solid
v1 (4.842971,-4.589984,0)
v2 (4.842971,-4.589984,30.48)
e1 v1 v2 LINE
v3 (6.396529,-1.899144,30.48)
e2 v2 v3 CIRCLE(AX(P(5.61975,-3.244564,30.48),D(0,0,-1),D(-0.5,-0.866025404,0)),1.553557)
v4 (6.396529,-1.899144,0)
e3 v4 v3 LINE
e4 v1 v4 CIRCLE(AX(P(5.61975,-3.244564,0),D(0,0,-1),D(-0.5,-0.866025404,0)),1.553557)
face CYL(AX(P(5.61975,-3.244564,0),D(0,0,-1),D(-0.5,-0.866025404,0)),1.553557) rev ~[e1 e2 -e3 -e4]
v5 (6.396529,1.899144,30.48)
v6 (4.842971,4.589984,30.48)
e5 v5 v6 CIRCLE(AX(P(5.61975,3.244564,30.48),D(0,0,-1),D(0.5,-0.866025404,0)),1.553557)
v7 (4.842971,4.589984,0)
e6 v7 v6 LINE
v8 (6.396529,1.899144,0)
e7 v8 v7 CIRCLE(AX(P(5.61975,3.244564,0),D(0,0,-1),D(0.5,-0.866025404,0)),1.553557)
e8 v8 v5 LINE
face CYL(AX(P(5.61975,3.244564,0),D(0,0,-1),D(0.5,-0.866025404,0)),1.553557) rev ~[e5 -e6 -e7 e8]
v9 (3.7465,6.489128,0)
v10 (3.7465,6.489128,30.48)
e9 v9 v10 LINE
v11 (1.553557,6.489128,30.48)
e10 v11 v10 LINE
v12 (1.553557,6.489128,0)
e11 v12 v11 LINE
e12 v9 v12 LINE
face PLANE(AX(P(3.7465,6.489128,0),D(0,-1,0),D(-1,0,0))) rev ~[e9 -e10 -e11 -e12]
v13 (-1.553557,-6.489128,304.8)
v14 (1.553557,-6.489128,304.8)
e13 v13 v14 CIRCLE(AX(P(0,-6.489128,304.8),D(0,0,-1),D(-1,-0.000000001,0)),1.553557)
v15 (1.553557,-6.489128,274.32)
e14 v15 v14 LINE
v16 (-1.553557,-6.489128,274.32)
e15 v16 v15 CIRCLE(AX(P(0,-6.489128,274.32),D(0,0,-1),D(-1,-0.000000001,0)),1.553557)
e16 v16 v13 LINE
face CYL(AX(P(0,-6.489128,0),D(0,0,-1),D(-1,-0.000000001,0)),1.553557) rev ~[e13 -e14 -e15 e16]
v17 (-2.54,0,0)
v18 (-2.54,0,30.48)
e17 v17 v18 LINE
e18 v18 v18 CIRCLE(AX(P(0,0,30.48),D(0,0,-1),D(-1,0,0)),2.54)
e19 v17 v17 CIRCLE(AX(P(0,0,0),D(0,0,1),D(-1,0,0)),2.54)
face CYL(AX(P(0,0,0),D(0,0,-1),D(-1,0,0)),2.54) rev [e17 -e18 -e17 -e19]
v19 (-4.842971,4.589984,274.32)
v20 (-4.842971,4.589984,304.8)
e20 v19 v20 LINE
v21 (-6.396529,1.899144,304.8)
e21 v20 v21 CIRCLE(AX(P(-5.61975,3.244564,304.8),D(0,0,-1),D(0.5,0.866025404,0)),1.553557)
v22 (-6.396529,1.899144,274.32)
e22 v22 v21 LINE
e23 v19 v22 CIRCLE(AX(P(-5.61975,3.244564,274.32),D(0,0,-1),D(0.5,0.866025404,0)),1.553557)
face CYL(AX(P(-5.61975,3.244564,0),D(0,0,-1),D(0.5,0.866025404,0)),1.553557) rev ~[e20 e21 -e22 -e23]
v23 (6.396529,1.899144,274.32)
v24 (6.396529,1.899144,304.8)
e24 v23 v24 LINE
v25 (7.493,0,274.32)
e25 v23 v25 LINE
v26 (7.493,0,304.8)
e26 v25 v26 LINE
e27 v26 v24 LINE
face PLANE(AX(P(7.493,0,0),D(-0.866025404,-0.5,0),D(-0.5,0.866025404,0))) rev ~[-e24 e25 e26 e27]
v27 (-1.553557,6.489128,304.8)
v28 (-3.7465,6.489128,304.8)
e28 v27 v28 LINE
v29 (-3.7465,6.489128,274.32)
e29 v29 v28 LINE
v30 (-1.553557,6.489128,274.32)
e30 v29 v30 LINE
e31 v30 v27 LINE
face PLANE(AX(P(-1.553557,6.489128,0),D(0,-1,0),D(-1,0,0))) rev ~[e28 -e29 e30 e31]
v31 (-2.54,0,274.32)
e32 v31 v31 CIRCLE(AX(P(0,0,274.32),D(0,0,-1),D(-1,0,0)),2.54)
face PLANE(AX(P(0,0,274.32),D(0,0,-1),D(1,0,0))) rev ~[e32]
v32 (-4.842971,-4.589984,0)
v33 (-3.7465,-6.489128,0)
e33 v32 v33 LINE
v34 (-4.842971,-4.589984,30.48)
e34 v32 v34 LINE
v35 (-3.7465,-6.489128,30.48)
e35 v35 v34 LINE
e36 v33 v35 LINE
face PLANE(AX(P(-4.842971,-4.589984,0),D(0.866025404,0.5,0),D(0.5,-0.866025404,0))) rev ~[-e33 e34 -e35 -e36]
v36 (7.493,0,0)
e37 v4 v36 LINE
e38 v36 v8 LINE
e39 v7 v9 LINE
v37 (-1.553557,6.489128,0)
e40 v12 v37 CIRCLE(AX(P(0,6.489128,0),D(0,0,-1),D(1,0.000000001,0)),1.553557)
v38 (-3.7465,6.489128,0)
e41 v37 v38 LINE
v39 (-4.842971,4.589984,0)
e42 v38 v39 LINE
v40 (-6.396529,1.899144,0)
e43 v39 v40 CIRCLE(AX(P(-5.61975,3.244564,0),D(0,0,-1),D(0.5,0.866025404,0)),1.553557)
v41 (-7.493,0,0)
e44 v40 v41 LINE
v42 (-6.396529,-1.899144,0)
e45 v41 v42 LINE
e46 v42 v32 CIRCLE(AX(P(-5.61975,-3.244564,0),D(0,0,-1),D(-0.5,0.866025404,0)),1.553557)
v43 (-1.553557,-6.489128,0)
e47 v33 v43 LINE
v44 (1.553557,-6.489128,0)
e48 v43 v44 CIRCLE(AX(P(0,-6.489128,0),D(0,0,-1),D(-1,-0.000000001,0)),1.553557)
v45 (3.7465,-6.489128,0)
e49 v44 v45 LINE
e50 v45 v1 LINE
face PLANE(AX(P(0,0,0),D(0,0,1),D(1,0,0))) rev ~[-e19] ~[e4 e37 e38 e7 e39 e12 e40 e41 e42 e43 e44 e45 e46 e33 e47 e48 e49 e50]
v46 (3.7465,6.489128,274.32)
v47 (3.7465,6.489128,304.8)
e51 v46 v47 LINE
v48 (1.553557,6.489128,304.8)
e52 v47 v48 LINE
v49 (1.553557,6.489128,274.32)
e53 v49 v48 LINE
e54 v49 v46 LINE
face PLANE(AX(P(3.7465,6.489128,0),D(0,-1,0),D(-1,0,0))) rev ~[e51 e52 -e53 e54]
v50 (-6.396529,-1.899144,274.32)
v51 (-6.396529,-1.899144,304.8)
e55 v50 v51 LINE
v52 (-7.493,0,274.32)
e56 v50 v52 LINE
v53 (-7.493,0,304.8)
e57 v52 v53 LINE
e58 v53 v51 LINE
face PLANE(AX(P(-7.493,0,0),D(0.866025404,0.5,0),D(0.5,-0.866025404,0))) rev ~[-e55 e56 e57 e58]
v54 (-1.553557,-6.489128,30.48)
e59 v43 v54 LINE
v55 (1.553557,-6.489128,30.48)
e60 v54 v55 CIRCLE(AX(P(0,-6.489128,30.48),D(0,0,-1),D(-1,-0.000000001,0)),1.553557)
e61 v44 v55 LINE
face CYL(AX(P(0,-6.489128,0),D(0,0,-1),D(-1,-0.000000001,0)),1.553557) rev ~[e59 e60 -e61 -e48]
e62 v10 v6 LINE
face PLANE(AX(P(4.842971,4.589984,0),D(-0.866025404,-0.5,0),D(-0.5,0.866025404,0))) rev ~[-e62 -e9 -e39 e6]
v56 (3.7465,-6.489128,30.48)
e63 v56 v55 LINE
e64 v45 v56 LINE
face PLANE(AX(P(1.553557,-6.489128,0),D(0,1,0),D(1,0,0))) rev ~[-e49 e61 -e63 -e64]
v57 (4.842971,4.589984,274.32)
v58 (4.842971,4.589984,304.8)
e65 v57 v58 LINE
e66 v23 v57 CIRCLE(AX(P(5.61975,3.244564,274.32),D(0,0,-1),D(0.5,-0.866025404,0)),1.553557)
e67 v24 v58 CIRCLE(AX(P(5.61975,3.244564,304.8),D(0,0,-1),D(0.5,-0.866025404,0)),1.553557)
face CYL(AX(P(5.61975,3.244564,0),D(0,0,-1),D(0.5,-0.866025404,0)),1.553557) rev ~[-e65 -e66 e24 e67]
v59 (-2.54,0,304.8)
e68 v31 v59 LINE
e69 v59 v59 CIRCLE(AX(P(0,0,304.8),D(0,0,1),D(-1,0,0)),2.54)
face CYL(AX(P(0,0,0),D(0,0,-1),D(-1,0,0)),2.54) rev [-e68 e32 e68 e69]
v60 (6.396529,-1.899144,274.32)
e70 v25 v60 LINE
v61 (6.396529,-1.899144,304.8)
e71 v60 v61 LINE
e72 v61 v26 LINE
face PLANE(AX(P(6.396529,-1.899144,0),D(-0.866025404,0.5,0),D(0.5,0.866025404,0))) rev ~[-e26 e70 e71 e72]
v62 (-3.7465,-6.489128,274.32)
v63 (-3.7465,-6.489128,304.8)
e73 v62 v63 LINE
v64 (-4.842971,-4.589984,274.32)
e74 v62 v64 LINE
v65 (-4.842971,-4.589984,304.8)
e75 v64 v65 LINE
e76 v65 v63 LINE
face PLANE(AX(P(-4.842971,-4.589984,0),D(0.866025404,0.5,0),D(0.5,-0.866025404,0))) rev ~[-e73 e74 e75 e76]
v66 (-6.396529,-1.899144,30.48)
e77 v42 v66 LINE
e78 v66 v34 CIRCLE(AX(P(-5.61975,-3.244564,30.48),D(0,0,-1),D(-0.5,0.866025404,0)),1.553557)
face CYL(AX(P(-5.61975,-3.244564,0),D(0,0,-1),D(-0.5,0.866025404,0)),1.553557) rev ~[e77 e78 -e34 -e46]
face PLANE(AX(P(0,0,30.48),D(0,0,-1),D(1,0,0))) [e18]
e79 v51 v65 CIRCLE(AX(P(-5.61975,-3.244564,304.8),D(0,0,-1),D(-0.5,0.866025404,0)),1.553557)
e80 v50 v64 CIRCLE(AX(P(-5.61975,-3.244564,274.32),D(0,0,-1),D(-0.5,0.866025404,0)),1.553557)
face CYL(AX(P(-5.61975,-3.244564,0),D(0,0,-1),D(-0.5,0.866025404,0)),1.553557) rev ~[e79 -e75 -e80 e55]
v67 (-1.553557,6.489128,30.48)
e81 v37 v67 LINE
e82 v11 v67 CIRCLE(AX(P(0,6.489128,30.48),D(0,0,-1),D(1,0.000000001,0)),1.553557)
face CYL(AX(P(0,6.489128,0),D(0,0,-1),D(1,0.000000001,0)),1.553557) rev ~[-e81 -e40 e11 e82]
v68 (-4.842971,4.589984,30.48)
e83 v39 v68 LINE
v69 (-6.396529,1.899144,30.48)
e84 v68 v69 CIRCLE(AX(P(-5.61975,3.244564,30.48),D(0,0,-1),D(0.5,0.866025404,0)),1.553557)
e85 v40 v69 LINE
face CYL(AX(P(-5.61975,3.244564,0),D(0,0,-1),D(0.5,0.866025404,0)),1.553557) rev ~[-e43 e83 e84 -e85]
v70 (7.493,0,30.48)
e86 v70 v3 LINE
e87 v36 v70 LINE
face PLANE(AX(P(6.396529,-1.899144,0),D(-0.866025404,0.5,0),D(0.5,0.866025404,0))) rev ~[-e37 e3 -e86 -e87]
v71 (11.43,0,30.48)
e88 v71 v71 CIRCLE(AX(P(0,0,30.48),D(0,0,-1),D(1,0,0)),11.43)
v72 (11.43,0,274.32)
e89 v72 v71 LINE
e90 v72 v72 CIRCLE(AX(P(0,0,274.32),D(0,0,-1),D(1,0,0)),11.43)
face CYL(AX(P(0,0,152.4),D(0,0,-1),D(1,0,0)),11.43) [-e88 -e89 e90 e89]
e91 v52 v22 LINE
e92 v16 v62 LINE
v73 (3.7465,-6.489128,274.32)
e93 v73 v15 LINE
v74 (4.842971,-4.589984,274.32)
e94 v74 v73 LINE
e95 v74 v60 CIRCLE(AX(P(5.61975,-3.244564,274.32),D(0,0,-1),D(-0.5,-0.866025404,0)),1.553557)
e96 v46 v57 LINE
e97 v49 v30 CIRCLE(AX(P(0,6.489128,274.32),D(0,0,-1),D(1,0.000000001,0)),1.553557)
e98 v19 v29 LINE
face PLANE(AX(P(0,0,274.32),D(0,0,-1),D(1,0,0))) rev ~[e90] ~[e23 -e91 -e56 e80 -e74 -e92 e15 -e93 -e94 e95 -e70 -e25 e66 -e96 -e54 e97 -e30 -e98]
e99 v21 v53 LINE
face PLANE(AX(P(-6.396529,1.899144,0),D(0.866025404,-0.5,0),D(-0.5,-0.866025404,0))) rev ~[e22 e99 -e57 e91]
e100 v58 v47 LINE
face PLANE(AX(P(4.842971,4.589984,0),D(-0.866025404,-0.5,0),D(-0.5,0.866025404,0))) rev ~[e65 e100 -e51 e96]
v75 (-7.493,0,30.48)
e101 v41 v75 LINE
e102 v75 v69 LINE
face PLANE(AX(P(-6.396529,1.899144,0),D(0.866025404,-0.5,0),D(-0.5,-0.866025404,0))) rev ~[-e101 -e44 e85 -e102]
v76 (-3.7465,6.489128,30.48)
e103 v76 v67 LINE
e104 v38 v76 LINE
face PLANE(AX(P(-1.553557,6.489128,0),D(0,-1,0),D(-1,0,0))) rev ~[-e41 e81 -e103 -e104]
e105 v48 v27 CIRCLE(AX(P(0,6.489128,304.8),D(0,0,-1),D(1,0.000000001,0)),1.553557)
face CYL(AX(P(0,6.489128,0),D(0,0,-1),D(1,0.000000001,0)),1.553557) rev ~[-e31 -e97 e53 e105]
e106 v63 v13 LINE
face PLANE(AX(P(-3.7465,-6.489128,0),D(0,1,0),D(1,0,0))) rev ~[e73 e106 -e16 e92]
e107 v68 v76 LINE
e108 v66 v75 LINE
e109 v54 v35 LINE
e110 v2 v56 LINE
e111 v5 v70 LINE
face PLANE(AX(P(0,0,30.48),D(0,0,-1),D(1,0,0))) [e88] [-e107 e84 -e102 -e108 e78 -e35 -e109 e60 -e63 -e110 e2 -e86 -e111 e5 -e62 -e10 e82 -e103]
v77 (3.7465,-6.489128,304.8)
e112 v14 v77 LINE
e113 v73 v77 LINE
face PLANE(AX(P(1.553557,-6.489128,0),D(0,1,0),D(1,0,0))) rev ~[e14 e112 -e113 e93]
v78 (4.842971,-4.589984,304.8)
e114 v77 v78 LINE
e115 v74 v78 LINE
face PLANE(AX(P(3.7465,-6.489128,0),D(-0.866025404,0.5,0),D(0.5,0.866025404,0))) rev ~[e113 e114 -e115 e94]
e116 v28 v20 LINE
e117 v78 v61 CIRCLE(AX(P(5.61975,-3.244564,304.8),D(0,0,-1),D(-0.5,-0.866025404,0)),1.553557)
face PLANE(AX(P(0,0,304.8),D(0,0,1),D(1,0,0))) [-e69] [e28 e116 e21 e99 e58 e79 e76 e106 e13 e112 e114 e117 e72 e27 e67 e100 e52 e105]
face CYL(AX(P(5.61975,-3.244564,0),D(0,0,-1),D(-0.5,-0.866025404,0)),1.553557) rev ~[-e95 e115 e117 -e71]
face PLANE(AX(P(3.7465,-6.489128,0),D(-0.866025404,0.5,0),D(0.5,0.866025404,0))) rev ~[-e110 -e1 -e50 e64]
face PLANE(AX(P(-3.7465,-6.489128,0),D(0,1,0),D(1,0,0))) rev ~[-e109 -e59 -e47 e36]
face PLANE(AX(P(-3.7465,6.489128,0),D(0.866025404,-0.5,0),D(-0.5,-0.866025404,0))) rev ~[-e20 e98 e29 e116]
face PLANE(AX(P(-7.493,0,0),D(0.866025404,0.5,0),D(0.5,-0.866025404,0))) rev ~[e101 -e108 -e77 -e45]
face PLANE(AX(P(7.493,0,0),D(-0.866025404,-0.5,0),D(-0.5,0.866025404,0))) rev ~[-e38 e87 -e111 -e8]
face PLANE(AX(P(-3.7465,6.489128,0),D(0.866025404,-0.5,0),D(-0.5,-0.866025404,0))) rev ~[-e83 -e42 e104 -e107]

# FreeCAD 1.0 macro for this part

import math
import FreeCAD as App
import Part
import Sketcher
from FreeCAD import Vector
Q = App.Units.Quantity

doc = App.newDocument("Part")
body = doc.addObject("PartDesign::Body", "Body")

sketch1 = body.newObject("Sketcher::SketchObject", "Sketch")
sketch1.AttachmentSupport = (doc.getObject("XY_Plane"), [""])
sketch1.MapMode = "FlatFace"
sketch1.addGeometry([
    Part.LineSegment(Vector(7.5, 0, 0), Vector(6.4, 1.9, 0)),
    Part.ArcOfCircle(Part.Circle(Vector(5.6, 3.2, 0), Vector(0, 0, 1), 1.6), math.radians(120), math.radians(300)),
    Part.LineSegment(Vector(4.8, 4.6, 0), Vector(3.7, 6.5, 0)),
    Part.LineSegment(Vector(3.7, 6.5, 0), Vector(1.6, 6.5, 0)),
    Part.ArcOfCircle(Part.Circle(Vector(0, 6.5, 0), Vector(0, 0, 1), 1.6), math.radians(180), math.radians(360)),
    Part.LineSegment(Vector(-1.6, 6.5, 0), Vector(-3.7, 6.5, 0)),
    Part.LineSegment(Vector(-3.7, 6.5, 0), Vector(-4.8, 4.6, 0)),
    Part.ArcOfCircle(Part.Circle(Vector(-5.6, 3.2, 0), Vector(0, 0, 1), 1.6), math.radians(-120), math.radians(60)),
    Part.LineSegment(Vector(-6.4, 1.9, 0), Vector(-7.5, 0, 0)),
    Part.LineSegment(Vector(-7.5, 0, 0), Vector(-6.4, -1.9, 0)),
    Part.ArcOfCircle(Part.Circle(Vector(-5.6, -3.2, 0), Vector(0, 0, 1), 1.6), math.radians(-60), math.radians(120)),
    Part.LineSegment(Vector(-4.8, -4.6, 0), Vector(-3.7, -6.5, 0)),
    Part.LineSegment(Vector(-3.7, -6.5, 0), Vector(-1.6, -6.5, 0)),
    Part.ArcOfCircle(Part.Circle(Vector(0, -6.5, 0), Vector(0, 0, 1), 1.6), math.radians(0), math.radians(180)),
    Part.LineSegment(Vector(1.6, -6.5, 0), Vector(3.7, -6.5, 0)),
    Part.LineSegment(Vector(3.7, -6.5, 0), Vector(4.8, -4.6, 0)),
    Part.ArcOfCircle(Part.Circle(Vector(5.6, -3.2, 0), Vector(0, 0, 1), 1.6), math.radians(60), math.radians(240)),
    Part.LineSegment(Vector(6.4, -1.9, 0), Vector(7.5, 0, 0)),
    Part.Circle(Vector(0, 0, 0), Vector(0, 0, 1), 2.5),
], False)
sketch1.addConstraint([
    Sketcher.Constraint("Coincident", 0, 2, 1, 2),
    Sketcher.Constraint("Coincident", 1, 1, 2, 1),
    Sketcher.Constraint("Coincident", 2, 2, 3, 1),
    Sketcher.Constraint("Coincident", 3, 2, 4, 2),
    Sketcher.Constraint("Coincident", 4, 1, 5, 1),
    Sketcher.Constraint("Coincident", 5, 2, 6, 1),
    Sketcher.Constraint("Coincident", 6, 2, 7, 2),
    Sketcher.Constraint("Coincident", 7, 1, 8, 1),
    Sketcher.Constraint("Coincident", 8, 2, 9, 1),
    Sketcher.Constraint("Coincident", 9, 2, 10, 2),
    Sketcher.Constraint("Coincident", 10, 1, 11, 1),
    Sketcher.Constraint("Coincident", 11, 2, 12, 1),
    Sketcher.Constraint("Coincident", 12, 2, 13, 2),
    Sketcher.Constraint("Coincident", 13, 1, 14, 1),
    Sketcher.Constraint("Coincident", 14, 2, 15, 1),
    Sketcher.Constraint("Coincident", 15, 2, 16, 2),
    Sketcher.Constraint("Coincident", 16, 1, 17, 1),
    Sketcher.Constraint("Coincident", 17, 2, 0, 1),
    Sketcher.Constraint("Horizontal", 3),
    Sketcher.Constraint("Horizontal", 5),
    Sketcher.Constraint("Horizontal", 12),
    Sketcher.Constraint("Horizontal", 14),
    Sketcher.Constraint("Coincident", 18, 3, -1, 1),
    Sketcher.Constraint("Equal", 1, 4),
    Sketcher.Constraint("Equal", 4, 7),
    Sketcher.Constraint("Equal", 7, 10),
    Sketcher.Constraint("Equal", 10, 13),
    Sketcher.Constraint("Equal", 13, 16),
    Sketcher.Constraint("Symmetric", 1, 3, 10, 3, -1, 1),
    Sketcher.Constraint("Symmetric", 4, 3, 13, 3, -1, 1),
    Sketcher.Constraint("Symmetric", 7, 3, 16, 3, -1, 1),
    Sketcher.Constraint("Symmetric", 2, 2, 11, 2, -1, 1),
    Sketcher.Constraint("Symmetric", 5, 2, 14, 2, -1, 1),
    Sketcher.Constraint("Symmetric", 8, 2, 17, 2, -1, 1),
    Sketcher.Constraint("Symmetric", 1, 3, 7, 3, -2),
    Sketcher.Constraint("Symmetric", 3, 2, 4, 1, -2),
    Sketcher.Constraint("PointOnObject", 8, 2, -1),
    Sketcher.Constraint("Parallel", 0, 2),
    Sketcher.Constraint("Parallel", 6, 8),
    Sketcher.Constraint("Parallel", 2, 9),
    Sketcher.Constraint("Parallel", 9, 11),
    Sketcher.Constraint("Parallel", 8, 15),
    Sketcher.Constraint("Parallel", 15, 17),
    Sketcher.Constraint("Horizontal", 4, 3, 2, 2),
    Sketcher.Constraint("Horizontal", 1, 1, 6, 2),
    Sketcher.Constraint("Horizontal", 0, 2, 7, 1),
    Sketcher.Constraint("Equal", 0, 2),
    Sketcher.Constraint("Diameter", 18, Q("0.2 in")),
    Sketcher.Constraint("Angle", 0, Q("120 deg")),
    Sketcher.Constraint("DistanceX", 8, 2, -1, 1, Q("0.295 in")),
    Sketcher.Constraint("DistanceX", 5, 2, 2, 2, Q("0.295 in")),
    Sketcher.Constraint("Radius", 1, Q("1.553557 mm")),
    Sketcher.Constraint("DistanceX", 7, 3, 1, 3, Q("0.4425 in")),
    Sketcher.Constraint("DistanceY", -1, 1, 4, 3, Q("6.489128 mm")),
])
pad1 = body.newObject("PartDesign::Pad", "Pad")
pad1.Profile = sketch1
pad1.Length = Q("12 in")

sketch2 = body.newObject("Sketcher::SketchObject", "Sketch001")
sketch2.AttachmentSupport = (doc.getObject("XY_Plane"), [""])
sketch2.MapMode = "FlatFace"
sketch2.AttachmentOffset = App.Placement(Vector(0, 0, 6 * 25.4), App.Rotation())
sketch2.addGeometry(Part.Circle(Vector(0, 0, 0), Vector(0, 0, 1), 11), False)
sketch2.addConstraint([
    Sketcher.Constraint("Coincident", 0, 3, -1, 1),
    Sketcher.Constraint("Diameter", 0, Q("0.9 in")),
])
pad2 = body.newObject("PartDesign::Pad", "Pad001")
pad2.Profile = sketch2
pad2.Length = Q("9.6 in")
pad2.Midplane = True

doc.recompute()
